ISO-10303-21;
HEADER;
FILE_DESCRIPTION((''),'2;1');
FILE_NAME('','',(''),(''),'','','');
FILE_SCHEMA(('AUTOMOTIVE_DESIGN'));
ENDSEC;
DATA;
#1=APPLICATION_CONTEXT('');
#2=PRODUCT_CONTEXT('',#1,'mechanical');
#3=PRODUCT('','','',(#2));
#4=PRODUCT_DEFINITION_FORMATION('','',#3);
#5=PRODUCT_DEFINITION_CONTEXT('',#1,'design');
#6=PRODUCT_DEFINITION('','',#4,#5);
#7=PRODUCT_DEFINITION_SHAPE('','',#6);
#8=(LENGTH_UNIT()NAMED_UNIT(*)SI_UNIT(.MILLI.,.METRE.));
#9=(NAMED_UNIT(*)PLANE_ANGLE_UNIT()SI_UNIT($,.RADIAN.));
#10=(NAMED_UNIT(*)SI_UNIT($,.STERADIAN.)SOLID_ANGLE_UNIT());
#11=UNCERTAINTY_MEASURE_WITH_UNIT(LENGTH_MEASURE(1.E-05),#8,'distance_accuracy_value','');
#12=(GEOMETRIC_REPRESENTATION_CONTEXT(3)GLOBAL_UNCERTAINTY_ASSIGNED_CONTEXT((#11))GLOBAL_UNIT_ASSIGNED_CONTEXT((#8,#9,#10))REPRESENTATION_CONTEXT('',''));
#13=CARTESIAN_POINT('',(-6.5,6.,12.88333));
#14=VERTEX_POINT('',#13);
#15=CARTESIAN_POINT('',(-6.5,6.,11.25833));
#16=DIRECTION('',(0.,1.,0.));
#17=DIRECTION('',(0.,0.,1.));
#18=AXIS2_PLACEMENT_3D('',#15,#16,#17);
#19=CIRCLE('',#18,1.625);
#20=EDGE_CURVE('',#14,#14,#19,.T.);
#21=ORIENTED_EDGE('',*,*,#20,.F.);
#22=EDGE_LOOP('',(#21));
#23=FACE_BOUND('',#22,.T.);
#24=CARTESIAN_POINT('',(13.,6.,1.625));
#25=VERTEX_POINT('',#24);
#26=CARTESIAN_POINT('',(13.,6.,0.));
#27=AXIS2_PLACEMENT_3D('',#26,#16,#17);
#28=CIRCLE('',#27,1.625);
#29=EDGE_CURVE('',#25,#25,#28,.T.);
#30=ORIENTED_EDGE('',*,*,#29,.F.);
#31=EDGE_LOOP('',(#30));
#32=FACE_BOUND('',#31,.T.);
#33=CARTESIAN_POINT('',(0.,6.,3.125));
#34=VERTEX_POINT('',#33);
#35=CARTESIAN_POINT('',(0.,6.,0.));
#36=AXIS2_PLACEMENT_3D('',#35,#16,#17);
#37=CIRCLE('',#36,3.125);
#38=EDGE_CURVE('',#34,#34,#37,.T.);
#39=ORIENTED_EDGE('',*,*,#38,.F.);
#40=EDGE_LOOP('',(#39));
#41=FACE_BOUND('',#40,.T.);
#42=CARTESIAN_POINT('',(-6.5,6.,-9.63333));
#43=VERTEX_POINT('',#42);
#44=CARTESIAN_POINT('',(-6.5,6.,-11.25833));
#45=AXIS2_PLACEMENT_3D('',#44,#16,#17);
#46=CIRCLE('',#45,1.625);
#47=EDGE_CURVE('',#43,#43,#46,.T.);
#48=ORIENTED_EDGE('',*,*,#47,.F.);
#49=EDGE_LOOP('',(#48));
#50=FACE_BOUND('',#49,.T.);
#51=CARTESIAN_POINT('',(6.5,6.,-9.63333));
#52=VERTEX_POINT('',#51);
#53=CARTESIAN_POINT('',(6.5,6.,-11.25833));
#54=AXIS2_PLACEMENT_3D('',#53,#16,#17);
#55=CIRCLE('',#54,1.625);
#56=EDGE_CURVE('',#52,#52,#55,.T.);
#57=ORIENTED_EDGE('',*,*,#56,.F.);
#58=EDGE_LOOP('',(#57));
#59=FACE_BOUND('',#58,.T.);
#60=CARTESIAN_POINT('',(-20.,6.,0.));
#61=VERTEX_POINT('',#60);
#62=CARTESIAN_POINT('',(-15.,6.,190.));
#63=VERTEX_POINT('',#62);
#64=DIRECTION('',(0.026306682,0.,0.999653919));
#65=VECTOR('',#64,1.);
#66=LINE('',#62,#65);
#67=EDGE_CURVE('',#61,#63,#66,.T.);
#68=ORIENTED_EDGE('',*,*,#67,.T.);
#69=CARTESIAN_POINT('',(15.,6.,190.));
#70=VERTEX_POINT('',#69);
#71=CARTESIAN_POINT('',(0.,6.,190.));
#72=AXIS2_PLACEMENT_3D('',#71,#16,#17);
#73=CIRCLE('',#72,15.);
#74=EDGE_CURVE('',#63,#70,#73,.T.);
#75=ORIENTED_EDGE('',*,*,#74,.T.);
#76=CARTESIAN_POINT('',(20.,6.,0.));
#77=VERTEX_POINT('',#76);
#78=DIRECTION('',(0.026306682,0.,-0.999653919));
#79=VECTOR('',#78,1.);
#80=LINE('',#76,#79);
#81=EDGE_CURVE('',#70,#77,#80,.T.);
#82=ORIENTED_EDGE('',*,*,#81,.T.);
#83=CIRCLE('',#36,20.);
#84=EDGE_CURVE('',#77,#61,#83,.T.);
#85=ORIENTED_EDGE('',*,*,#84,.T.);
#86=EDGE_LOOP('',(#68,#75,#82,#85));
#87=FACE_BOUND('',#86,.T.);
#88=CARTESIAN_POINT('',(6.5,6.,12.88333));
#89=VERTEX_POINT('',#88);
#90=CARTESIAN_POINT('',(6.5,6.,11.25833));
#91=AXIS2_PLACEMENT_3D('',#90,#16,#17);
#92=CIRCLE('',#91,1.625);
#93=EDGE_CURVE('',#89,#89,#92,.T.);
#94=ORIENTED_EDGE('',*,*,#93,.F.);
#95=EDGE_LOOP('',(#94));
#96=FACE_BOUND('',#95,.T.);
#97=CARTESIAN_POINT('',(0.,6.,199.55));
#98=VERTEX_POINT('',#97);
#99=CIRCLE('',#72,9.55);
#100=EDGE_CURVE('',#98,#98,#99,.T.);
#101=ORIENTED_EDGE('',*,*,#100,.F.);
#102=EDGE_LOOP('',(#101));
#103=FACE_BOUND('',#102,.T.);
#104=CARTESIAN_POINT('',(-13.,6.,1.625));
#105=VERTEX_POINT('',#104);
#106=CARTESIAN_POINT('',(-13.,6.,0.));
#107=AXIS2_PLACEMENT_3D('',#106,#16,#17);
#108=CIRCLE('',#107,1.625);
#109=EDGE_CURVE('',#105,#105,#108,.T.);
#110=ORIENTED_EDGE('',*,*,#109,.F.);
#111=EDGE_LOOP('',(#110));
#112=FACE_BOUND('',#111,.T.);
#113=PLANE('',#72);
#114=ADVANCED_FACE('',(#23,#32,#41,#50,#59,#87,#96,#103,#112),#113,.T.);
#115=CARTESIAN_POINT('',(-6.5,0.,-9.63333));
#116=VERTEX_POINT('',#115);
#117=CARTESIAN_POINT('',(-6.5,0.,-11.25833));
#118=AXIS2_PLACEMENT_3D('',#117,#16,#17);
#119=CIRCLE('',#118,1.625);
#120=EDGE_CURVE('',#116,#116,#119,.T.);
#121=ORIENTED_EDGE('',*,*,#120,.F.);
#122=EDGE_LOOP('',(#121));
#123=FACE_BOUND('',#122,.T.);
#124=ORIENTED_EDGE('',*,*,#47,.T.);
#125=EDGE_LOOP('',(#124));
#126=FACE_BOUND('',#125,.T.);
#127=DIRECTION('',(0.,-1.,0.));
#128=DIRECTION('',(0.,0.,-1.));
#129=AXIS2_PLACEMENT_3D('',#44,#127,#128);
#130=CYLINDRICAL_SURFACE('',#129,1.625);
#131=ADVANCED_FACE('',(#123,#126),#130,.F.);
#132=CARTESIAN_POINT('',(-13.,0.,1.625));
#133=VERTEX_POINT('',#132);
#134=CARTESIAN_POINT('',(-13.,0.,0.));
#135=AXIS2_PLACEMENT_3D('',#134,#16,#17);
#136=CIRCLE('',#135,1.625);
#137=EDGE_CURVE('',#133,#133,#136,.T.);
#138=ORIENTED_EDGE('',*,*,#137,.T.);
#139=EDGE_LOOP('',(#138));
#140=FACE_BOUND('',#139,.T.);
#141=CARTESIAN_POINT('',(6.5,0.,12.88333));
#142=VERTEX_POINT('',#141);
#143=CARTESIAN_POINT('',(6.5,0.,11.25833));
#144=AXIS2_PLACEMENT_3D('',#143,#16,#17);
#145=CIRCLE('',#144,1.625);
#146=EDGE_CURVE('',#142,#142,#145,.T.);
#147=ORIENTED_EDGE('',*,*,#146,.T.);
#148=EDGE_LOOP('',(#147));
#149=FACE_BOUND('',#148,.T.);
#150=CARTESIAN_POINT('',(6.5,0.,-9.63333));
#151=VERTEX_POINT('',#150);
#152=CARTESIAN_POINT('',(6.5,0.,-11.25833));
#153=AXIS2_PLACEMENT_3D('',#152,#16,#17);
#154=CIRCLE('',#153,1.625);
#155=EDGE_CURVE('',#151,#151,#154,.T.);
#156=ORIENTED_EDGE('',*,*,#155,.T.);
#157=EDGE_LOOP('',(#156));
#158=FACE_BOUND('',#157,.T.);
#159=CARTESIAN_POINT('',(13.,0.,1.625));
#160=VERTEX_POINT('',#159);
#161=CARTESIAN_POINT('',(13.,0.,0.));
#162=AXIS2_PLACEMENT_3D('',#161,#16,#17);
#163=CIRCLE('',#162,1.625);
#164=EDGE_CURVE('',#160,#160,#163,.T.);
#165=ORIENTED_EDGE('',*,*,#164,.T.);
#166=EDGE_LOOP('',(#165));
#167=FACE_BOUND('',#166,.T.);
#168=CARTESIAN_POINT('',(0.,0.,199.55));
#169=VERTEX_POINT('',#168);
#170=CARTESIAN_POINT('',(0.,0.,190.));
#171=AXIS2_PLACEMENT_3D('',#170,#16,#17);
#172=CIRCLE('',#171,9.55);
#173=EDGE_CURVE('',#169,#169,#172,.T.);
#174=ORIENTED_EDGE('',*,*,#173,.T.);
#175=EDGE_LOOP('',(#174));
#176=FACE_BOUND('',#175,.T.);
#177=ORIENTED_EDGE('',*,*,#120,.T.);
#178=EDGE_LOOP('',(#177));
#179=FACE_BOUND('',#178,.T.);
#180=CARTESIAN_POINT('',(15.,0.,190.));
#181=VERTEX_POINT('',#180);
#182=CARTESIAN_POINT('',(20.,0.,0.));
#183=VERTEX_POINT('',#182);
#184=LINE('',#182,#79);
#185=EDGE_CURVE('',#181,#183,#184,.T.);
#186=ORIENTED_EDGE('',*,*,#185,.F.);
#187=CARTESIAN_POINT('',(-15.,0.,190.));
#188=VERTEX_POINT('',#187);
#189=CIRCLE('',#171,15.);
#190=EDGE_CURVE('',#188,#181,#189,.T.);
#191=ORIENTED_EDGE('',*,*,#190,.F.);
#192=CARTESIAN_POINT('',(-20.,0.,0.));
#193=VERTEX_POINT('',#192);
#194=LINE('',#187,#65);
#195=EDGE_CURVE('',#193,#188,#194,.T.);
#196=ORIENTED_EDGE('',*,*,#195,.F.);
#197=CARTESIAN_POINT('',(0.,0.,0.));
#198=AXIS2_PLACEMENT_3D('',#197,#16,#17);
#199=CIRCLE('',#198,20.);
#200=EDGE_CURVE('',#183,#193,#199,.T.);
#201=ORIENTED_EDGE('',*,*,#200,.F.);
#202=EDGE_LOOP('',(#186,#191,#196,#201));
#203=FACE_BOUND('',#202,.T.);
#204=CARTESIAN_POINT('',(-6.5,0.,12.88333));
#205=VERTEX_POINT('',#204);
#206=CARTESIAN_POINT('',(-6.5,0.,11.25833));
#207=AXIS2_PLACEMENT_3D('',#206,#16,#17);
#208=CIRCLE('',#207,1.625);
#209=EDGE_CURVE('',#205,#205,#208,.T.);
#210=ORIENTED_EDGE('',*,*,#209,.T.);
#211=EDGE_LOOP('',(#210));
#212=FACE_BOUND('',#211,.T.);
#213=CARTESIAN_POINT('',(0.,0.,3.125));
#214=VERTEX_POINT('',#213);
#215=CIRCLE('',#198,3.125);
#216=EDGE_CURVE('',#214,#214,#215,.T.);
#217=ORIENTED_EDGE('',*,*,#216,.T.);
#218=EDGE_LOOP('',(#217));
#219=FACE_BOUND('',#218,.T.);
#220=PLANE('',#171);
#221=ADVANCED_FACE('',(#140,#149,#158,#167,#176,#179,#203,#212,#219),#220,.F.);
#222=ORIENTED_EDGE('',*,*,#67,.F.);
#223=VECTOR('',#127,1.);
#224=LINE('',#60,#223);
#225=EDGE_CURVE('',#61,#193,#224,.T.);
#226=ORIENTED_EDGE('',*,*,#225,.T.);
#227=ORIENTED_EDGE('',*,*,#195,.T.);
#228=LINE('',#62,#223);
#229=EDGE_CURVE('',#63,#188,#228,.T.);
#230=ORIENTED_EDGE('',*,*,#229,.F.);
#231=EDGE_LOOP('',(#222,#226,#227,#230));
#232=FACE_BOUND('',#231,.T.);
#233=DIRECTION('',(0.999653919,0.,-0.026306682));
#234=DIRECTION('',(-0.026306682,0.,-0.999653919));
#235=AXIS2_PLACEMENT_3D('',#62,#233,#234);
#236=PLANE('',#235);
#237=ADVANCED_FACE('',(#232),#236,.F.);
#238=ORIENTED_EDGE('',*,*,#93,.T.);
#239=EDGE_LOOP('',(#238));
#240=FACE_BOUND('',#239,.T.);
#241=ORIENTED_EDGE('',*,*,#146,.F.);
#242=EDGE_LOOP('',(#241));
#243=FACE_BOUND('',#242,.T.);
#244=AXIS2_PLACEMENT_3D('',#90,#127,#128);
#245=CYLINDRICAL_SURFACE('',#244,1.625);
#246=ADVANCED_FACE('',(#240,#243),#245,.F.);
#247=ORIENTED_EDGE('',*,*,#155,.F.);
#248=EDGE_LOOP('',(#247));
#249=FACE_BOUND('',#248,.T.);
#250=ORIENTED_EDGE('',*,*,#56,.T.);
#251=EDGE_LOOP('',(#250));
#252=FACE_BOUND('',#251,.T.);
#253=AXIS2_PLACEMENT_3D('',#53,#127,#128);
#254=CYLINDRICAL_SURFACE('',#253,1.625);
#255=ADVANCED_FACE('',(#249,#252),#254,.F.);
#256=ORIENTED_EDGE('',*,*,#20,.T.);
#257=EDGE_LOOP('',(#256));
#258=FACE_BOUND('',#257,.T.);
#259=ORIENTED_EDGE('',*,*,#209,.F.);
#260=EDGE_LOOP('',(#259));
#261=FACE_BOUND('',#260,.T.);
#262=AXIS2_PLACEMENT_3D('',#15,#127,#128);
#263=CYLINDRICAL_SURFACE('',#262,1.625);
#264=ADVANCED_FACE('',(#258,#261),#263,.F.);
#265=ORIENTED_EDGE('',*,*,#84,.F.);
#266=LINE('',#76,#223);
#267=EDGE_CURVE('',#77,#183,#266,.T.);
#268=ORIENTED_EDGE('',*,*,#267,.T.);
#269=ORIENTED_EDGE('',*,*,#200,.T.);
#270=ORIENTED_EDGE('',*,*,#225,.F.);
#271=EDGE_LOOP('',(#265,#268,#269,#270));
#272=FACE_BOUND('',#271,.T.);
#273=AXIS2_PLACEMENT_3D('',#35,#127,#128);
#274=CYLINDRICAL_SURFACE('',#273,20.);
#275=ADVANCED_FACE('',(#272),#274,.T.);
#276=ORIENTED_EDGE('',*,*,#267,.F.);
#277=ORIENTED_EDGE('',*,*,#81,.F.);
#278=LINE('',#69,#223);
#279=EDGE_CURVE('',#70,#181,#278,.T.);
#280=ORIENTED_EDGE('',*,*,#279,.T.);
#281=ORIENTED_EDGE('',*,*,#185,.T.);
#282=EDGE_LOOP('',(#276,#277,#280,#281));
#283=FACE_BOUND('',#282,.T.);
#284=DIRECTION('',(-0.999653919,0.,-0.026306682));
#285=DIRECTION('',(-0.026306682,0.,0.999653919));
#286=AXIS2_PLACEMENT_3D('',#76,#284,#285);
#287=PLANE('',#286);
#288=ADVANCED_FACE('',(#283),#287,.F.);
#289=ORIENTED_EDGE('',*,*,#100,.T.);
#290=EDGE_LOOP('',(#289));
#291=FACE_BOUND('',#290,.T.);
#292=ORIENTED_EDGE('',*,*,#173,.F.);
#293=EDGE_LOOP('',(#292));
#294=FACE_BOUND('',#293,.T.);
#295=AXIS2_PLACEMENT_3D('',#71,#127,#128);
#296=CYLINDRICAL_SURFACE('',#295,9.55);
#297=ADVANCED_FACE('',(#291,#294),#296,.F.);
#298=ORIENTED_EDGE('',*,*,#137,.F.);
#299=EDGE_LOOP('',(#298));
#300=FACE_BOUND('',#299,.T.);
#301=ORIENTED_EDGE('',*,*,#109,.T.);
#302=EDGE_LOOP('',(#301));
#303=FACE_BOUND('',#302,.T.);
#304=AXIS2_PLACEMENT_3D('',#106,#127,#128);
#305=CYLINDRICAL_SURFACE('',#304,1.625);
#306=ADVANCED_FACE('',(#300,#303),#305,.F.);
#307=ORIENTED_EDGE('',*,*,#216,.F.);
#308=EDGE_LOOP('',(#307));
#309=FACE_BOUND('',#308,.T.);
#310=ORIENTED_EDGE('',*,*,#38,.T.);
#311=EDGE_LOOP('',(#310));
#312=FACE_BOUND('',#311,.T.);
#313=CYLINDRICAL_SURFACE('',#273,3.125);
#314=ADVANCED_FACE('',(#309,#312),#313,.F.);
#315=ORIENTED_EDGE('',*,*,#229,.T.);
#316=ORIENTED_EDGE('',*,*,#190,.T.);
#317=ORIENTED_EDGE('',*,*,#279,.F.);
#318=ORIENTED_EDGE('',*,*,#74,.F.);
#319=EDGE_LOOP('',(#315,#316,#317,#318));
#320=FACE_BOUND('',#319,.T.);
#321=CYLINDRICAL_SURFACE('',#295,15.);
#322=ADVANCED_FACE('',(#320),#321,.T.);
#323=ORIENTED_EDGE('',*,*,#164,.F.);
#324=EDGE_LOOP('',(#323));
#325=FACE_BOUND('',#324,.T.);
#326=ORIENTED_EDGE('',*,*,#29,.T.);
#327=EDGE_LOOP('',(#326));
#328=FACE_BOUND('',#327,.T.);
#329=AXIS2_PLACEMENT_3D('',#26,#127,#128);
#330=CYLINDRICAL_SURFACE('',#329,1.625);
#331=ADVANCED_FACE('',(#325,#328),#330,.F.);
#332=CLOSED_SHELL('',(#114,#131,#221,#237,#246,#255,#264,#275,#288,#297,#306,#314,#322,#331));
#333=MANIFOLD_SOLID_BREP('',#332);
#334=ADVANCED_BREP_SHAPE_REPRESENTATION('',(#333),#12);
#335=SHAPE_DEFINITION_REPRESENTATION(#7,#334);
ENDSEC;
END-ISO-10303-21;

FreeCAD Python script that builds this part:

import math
import FreeCAD as App
import Part
import Sketcher

V = App.Vector

doc = App.newDocument("Part")
params = doc.addObject("Spreadsheet::Sheet", "Params")
for row, (alias, value) in enumerate([
    ("sketch1_radius", "15 mm"),
    ("sketch1_radius2", "20 mm"),
    ("sketch1_diameter", "19.1 mm"),
    ("sketch1_diameter2", "3.25 mm"),
    ("sketch1_diameter3", "6.25 mm"),
    ("pad1_length", "6 mm"),
], start=1):
    params.set(f"A{row}", alias)
    params.set(f"B{row}", "=" + value)
    params.setAlias(f"B{row}", alias)

body = doc.addObject("PartDesign::Body", "Body")

# Sketch on XZ plane
sketch1 = body.newObject("Sketcher::SketchObject", "Sketch")
sketch1.AttachmentSupport = (doc.getObject("XZ_Plane"), [""])
sketch1.MapMode = "FlatFace"
sketch1.addGeometry(Part.LineSegment(V(-20, 0, 0), V(-15, 190, 0)), False)
sketch1.addGeometry(Part.ArcOfCircle(Part.Circle(V(0, 190, 0), V(0, 0, 1), 15), math.radians(0), math.radians(180)), False)
sketch1.addGeometry(Part.LineSegment(V(15, 190, 0), V(20, 0, 0)), False)
sketch1.addGeometry(Part.ArcOfCircle(Part.Circle(V(0, 0, 0), V(0, 0, 1), 20), math.radians(180), math.radians(360)), False)
sketch1.addGeometry(Part.Circle(V(0, 190, 0), V(0, 0, 1), 9.6), False)
sketch1.addGeometry(Part.Circle(V(13, 0, 0), V(0, 0, 1), 1.6), False)
sketch1.addGeometry(Part.Circle(V(6.5, 11.3, 0), V(0, 0, 1), 1.6), False)
sketch1.addGeometry(Part.Circle(V(6.5, -11.3, 0), V(0, 0, 1), 1.6), False)
sketch1.addGeometry(Part.Circle(V(0, 0, 0), V(0, 0, 1), 3.1), False)
sketch1.addGeometry(Part.Circle(V(-6.5, 11.3, 0), V(0, 0, 1), 1.6), False)
sketch1.addGeometry(Part.Circle(V(-6.5, -11.3, 0), V(0, 0, 1), 1.6), False)
sketch1.addGeometry(Part.Circle(V(-13, 0, 0), V(0, 0, 1), 1.6), False)
sketch1.addConstraint(Sketcher.Constraint("Coincident", 0, 2, 1, 2))
sketch1.addConstraint(Sketcher.Constraint("Coincident", 1, 1, 2, 1))
sketch1.addConstraint(Sketcher.Constraint("Coincident", 2, 2, 3, 2))
sketch1.addConstraint(Sketcher.Constraint("Coincident", 3, 1, 0, 1))
sketch1.addConstraint(Sketcher.Constraint("Coincident", 3, 3, -1, 1))
sketch1.addConstraint(Sketcher.Constraint("Coincident", 8, 3, -1, 1))
sketch1.addConstraint(Sketcher.Constraint("Coincident", 4, 3, 1, 3))
sketch1.addConstraint(Sketcher.Constraint("Equal", 5, 6))
sketch1.addConstraint(Sketcher.Constraint("Equal", 6, 7))
sketch1.addConstraint(Sketcher.Constraint("Equal", 7, 9))
sketch1.addConstraint(Sketcher.Constraint("Equal", 9, 10))
sketch1.addConstraint(Sketcher.Constraint("Equal", 10, 11))
sketch1.addConstraint(Sketcher.Constraint("Symmetric", 7, 3, 9, 3, -1, 1))
sketch1.addConstraint(Sketcher.Constraint("Symmetric", 6, 3, 10, 3, -1, 1))
sketch1.addConstraint(Sketcher.Constraint("Symmetric", 5, 3, 11, 3, -1, 1))
sketch1.addConstraint(Sketcher.Constraint("Symmetric", 6, 3, 9, 3, -2))
sketch1.addConstraint(Sketcher.Constraint("Symmetric", 0, 2, 1, 1, -2))
sketch1.addConstraint(Sketcher.Constraint("PointOnObject", 5, 3, -1))
sketch1.addConstraint(Sketcher.Constraint("PointOnObject", 2, 2, -1))
sketch1.addConstraint(Sketcher.Constraint("PointOnObject", 3, 1, -1))
sketch1.addConstraint(Sketcher.Constraint("Horizontal", 4, 3, 0, 2))
sketch1.addConstraint(Sketcher.Constraint("Radius", 1, 15.0))
sketch1.addConstraint(Sketcher.Constraint("Radius", 3, 20.0))
sketch1.addConstraint(Sketcher.Constraint("Diameter", 4, 19.1))
sketch1.addConstraint(Sketcher.Constraint("Diameter", 5, 3.25))
sketch1.addConstraint(Sketcher.Constraint("Diameter", 8, 6.25))
sketch1.addConstraint(Sketcher.Constraint("DistanceY", -1, 1, 1, 3, 190.0))
sketch1.addConstraint(Sketcher.Constraint("DistanceX", -1, 1, 5, 3, 13.0))
sketch1.addConstraint(Sketcher.Constraint("DistanceX", 9, 3, 6, 3, 13.0))
sketch1.addConstraint(Sketcher.Constraint("DistanceY", -1, 1, 6, 3, 11.25833))
sketch1.setExpression("Constraints[21]", "Params.sketch1_radius")
sketch1.setExpression("Constraints[22]", "Params.sketch1_radius2")
sketch1.setExpression("Constraints[23]", "Params.sketch1_diameter")
sketch1.setExpression("Constraints[24]", "Params.sketch1_diameter2")
sketch1.setExpression("Constraints[25]", "Params.sketch1_diameter3")
pad1 = body.newObject("PartDesign::Pad", "Pad")
pad1.Profile = sketch1
pad1.setExpression("Length", "Params.pad1_length")
pad1.Reversed = True

doc.recompute()
